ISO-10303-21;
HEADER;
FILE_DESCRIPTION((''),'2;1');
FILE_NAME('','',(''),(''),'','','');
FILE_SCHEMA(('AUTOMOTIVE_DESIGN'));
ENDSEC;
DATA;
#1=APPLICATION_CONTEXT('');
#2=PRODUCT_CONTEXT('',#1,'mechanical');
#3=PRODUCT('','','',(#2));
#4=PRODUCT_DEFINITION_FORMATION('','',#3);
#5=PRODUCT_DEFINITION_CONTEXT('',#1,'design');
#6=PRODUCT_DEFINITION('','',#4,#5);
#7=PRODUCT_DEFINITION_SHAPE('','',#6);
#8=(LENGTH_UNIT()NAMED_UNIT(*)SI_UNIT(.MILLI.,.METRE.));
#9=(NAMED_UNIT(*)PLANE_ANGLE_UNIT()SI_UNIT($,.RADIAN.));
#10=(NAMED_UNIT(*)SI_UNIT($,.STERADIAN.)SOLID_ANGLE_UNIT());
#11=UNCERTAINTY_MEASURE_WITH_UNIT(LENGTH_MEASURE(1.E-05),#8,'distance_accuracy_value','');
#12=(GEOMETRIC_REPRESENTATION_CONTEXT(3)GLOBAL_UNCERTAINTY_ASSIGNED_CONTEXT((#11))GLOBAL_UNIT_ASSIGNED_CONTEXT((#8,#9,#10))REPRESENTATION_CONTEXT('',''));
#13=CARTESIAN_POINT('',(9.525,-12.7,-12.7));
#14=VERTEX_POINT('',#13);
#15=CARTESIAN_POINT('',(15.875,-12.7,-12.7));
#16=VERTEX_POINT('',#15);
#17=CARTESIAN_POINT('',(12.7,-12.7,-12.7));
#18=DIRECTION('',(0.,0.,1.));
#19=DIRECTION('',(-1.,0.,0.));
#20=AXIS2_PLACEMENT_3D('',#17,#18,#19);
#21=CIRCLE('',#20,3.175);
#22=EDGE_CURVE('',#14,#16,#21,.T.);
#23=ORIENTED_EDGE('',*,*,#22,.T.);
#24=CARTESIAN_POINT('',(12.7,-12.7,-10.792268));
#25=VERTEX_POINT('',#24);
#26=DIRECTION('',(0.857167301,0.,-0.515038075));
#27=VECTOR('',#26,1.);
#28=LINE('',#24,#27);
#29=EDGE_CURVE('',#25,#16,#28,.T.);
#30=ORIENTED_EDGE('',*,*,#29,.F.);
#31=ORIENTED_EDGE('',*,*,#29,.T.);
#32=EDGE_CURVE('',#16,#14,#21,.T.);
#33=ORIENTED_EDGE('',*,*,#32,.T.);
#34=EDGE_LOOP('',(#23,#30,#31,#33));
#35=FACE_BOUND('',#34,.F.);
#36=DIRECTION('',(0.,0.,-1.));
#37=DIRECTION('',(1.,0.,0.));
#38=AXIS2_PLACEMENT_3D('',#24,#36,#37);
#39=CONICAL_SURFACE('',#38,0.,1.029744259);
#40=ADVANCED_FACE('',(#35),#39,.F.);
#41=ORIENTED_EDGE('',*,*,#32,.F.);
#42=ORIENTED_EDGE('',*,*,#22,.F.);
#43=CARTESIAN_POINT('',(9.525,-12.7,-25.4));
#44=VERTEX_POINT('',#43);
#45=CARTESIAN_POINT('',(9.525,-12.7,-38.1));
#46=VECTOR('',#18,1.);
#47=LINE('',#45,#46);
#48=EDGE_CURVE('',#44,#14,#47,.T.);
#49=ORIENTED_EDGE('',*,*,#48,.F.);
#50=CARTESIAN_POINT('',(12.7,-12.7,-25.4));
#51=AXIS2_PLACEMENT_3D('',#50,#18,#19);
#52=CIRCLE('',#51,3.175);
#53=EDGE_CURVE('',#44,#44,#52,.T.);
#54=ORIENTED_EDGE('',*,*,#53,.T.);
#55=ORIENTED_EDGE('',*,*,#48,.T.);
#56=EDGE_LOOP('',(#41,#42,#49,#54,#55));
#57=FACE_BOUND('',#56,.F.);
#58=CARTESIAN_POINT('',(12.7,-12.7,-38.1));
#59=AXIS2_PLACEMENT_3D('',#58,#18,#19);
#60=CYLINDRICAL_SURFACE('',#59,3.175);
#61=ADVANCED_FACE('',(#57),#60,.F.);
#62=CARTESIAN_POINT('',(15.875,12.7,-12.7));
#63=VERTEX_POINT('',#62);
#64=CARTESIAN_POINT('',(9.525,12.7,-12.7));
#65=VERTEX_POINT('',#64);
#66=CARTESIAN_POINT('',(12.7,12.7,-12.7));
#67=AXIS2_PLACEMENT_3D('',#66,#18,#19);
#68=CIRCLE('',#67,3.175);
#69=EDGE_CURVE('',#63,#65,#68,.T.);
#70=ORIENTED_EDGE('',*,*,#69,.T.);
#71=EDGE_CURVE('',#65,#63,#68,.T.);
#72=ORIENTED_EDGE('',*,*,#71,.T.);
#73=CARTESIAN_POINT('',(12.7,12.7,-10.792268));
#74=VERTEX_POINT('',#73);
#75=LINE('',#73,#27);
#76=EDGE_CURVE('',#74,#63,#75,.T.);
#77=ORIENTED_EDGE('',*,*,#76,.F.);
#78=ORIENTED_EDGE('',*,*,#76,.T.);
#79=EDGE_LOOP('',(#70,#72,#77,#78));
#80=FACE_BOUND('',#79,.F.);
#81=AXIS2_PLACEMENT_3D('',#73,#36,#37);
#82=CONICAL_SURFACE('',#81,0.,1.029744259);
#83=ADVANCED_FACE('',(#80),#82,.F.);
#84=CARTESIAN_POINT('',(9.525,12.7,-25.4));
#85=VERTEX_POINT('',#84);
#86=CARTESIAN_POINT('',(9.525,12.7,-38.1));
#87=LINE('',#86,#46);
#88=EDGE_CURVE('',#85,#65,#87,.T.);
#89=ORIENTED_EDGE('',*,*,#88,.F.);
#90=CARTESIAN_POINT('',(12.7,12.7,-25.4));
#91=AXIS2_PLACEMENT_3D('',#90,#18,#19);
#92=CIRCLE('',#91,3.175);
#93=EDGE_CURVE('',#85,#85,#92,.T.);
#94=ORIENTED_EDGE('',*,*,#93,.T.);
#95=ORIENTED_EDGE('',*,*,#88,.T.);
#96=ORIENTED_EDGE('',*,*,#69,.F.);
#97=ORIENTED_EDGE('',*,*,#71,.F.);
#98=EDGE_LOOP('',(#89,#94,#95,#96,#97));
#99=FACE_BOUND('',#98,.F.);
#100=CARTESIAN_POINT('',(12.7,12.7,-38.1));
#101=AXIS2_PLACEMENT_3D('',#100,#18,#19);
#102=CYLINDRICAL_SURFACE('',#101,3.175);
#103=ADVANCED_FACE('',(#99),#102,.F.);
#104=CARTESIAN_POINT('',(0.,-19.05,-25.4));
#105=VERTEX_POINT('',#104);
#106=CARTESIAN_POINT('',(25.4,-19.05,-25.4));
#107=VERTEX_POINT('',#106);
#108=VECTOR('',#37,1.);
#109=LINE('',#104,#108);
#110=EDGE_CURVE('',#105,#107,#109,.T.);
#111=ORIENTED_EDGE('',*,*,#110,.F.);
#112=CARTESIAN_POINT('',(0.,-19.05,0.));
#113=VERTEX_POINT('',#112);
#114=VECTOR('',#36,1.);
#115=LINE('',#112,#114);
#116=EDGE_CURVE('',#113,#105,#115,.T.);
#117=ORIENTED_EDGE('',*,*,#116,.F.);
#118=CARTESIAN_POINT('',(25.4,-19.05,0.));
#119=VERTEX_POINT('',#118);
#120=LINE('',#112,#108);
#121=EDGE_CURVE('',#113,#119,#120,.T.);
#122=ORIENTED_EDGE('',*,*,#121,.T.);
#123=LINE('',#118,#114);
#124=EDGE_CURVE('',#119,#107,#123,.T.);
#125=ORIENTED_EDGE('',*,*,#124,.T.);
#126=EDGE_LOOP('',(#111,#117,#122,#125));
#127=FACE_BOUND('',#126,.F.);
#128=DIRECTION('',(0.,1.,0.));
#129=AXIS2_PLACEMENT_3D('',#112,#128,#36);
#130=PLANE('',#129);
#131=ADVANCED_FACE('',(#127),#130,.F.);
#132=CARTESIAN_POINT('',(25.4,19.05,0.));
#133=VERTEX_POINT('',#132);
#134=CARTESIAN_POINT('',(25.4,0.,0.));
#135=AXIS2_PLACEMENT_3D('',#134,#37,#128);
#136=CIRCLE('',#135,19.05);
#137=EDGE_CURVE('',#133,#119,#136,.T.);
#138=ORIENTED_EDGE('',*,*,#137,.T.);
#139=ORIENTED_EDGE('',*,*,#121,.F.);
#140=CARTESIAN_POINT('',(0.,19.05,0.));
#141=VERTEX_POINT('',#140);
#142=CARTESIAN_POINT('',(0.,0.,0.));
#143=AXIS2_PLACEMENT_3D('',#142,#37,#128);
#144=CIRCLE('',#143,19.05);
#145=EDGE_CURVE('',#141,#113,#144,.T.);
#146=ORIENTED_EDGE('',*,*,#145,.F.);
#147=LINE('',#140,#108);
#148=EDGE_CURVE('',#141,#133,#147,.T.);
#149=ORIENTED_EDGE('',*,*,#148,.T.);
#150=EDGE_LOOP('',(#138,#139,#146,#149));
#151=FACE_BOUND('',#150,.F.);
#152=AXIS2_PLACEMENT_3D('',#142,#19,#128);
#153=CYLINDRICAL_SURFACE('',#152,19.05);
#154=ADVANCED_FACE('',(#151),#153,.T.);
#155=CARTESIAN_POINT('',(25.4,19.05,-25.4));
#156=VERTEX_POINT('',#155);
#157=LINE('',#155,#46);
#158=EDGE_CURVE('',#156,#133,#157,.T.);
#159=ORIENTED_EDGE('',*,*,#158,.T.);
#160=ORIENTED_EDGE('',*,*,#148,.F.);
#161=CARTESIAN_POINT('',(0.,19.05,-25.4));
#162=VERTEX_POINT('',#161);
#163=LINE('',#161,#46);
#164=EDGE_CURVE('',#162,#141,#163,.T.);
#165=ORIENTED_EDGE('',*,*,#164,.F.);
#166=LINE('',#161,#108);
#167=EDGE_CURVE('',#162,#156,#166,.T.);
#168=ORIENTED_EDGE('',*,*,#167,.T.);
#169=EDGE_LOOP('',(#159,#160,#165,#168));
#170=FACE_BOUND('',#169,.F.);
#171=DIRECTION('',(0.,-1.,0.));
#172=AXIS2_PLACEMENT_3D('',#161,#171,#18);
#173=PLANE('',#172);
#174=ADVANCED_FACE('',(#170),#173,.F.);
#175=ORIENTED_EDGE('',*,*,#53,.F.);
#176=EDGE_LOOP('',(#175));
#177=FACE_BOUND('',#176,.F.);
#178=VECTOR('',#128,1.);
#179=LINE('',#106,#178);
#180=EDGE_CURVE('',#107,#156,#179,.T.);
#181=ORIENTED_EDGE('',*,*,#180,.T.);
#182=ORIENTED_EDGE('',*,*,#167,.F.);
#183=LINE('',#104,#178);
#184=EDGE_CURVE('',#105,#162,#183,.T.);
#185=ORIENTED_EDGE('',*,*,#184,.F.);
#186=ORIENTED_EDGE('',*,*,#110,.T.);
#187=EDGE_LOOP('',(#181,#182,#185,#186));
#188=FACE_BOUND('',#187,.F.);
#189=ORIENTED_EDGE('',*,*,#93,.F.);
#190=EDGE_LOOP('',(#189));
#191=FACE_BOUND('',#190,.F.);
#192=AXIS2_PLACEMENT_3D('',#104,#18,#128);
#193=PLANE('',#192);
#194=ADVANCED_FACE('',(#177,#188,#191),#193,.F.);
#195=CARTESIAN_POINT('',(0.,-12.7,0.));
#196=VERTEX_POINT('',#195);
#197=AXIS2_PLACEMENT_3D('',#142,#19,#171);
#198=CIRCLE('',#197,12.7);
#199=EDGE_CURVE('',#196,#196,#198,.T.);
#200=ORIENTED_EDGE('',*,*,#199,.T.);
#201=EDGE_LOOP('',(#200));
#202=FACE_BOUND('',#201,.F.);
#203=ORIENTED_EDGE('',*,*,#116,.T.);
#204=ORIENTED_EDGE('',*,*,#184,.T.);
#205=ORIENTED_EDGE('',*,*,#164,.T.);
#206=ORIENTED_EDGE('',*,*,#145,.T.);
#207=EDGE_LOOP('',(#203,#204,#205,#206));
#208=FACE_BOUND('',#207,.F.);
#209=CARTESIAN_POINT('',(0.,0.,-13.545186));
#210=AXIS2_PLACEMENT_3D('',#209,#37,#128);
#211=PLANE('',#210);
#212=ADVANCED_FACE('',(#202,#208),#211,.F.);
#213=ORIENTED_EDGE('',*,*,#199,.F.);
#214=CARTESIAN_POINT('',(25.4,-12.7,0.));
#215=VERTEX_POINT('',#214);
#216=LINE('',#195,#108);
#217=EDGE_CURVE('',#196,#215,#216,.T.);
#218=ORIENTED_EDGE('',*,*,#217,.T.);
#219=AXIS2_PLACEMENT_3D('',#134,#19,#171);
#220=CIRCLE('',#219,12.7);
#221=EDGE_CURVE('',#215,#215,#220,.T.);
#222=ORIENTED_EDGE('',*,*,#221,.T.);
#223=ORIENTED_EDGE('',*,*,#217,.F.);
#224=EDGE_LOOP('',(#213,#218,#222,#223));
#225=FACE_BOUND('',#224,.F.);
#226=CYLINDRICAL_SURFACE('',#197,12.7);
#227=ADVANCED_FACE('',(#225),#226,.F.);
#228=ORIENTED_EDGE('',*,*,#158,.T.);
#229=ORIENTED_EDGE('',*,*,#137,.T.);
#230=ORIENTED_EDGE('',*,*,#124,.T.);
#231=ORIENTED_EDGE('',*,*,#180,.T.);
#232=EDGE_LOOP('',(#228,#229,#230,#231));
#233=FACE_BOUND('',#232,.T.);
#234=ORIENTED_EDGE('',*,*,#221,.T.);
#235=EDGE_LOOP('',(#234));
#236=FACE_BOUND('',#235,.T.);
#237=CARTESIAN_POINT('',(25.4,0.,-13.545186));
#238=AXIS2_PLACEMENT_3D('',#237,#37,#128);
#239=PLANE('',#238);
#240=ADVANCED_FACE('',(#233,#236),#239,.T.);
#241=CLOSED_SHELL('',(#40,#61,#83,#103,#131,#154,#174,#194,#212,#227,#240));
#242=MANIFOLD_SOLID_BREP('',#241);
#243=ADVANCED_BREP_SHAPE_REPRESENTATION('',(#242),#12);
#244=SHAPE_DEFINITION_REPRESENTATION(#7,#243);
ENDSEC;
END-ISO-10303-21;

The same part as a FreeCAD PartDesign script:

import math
import FreeCAD as App
import Part
import Sketcher
from FreeCAD import Vector
Q = App.Units.Quantity

doc = App.newDocument("Part")
body = doc.addObject("PartDesign::Body", "Body")

# Sketch on YZ plane
sketch1 = body.newObject("Sketcher::SketchObject", "Sketch")
sketch1.AttachmentSupport = (doc.getObject("YZ_Plane"), [""])
sketch1.MapMode = "FlatFace"
sketch1.addGeometry(Part.LineSegment(Vector(-19, 0, 0), Vector(-19, -25, 0)), False)
sketch1.addGeometry(Part.LineSegment(Vector(-19, -25, 0), Vector(19, -25, 0)), False)
sketch1.addGeometry(Part.LineSegment(Vector(19, -25, 0), Vector(19, 0, 0)), False)
sketch1.addGeometry(Part.ArcOfCircle(Part.Circle(Vector(0, 0, 0), Vector(0, 0, 1), 19), math.radians(0), math.radians(180)), False)
sketch1.addGeometry(Part.Circle(Vector(0, 0, 0), Vector(0, 0, 1), 13), False)
sketch1.addConstraint(Sketcher.Constraint("Coincident", 0, 2, 1, 1))
sketch1.addConstraint(Sketcher.Constraint("Coincident", 1, 2, 2, 1))
sketch1.addConstraint(Sketcher.Constraint("Tangent", 2, 2, 3, 1))
sketch1.addConstraint(Sketcher.Constraint("Tangent", 3, 2, 0, 1))
sketch1.addConstraint(Sketcher.Constraint("Vertical", 0))
sketch1.addConstraint(Sketcher.Constraint("Horizontal", 1))
sketch1.addConstraint(Sketcher.Constraint("Vertical", 2))
sketch1.addConstraint(Sketcher.Constraint("Coincident", 3, 3, -1, 1))
sketch1.addConstraint(Sketcher.Constraint("Coincident", 4, 3, -1, 1))
sketch1.addConstraint(Sketcher.Constraint("Diameter", 4, Q("1 in")))
sketch1.addConstraint(Sketcher.Constraint("DistanceY", 0, 2, 0, 1, Q("1 in")))
sketch1.addConstraint(Sketcher.Constraint("Radius", 3, Q("0.75 in")))
pad1 = body.newObject("PartDesign::Pad", "Pad")
pad1.Profile = sketch1
pad1.Length = Q("1 in")

# Sketch on XY plane
sketch2 = body.newObject("Sketcher::SketchObject", "Sketch001")
sketch2.AttachmentSupport = (doc.getObject("XY_Plane"), [""])
sketch2.MapMode = "FlatFace"
sketch2.AttachmentOffset = App.Placement(Vector(0, 0, -1 * 25.4), App.Rotation())
sketch2.addGeometry(Part.Circle(Vector(12.7, -12.7, 0), Vector(0, 0, 1), 3.2), False)
sketch2.addGeometry(Part.Circle(Vector(12.7, 12.7, 0), Vector(0, 0, 1), 3.2), False)
sketch2.addConstraint(Sketcher.Constraint("Equal", 0, 1))
sketch2.addConstraint(Sketcher.Constraint("Symmetric", 0, 3, 1, 3, -1))
sketch2.addConstraint(Sketcher.Constraint("Diameter", 0, Q("0.25 in")))
sketch2.addConstraint(Sketcher.Constraint("DistanceY", 0, 3, 1, 3, Q("1 in")))
sketch2.addConstraint(Sketcher.Constraint("DistanceX", -1, 1, 0, 3, Q("0.5 in")))
doc.recompute()
hole = body.newObject("PartDesign::Hole", "Hole")
hole.Profile = sketch2
hole.ThreadType = "None"
hole.Diameter = Q("0.25 in")
hole.DepthType = "Dimension"
hole.Depth = Q("0.5 in")
hole.DrillPoint = "Angled"
hole.DrillPointAngle = 118
hole.Reversed = True

doc.recompute()
